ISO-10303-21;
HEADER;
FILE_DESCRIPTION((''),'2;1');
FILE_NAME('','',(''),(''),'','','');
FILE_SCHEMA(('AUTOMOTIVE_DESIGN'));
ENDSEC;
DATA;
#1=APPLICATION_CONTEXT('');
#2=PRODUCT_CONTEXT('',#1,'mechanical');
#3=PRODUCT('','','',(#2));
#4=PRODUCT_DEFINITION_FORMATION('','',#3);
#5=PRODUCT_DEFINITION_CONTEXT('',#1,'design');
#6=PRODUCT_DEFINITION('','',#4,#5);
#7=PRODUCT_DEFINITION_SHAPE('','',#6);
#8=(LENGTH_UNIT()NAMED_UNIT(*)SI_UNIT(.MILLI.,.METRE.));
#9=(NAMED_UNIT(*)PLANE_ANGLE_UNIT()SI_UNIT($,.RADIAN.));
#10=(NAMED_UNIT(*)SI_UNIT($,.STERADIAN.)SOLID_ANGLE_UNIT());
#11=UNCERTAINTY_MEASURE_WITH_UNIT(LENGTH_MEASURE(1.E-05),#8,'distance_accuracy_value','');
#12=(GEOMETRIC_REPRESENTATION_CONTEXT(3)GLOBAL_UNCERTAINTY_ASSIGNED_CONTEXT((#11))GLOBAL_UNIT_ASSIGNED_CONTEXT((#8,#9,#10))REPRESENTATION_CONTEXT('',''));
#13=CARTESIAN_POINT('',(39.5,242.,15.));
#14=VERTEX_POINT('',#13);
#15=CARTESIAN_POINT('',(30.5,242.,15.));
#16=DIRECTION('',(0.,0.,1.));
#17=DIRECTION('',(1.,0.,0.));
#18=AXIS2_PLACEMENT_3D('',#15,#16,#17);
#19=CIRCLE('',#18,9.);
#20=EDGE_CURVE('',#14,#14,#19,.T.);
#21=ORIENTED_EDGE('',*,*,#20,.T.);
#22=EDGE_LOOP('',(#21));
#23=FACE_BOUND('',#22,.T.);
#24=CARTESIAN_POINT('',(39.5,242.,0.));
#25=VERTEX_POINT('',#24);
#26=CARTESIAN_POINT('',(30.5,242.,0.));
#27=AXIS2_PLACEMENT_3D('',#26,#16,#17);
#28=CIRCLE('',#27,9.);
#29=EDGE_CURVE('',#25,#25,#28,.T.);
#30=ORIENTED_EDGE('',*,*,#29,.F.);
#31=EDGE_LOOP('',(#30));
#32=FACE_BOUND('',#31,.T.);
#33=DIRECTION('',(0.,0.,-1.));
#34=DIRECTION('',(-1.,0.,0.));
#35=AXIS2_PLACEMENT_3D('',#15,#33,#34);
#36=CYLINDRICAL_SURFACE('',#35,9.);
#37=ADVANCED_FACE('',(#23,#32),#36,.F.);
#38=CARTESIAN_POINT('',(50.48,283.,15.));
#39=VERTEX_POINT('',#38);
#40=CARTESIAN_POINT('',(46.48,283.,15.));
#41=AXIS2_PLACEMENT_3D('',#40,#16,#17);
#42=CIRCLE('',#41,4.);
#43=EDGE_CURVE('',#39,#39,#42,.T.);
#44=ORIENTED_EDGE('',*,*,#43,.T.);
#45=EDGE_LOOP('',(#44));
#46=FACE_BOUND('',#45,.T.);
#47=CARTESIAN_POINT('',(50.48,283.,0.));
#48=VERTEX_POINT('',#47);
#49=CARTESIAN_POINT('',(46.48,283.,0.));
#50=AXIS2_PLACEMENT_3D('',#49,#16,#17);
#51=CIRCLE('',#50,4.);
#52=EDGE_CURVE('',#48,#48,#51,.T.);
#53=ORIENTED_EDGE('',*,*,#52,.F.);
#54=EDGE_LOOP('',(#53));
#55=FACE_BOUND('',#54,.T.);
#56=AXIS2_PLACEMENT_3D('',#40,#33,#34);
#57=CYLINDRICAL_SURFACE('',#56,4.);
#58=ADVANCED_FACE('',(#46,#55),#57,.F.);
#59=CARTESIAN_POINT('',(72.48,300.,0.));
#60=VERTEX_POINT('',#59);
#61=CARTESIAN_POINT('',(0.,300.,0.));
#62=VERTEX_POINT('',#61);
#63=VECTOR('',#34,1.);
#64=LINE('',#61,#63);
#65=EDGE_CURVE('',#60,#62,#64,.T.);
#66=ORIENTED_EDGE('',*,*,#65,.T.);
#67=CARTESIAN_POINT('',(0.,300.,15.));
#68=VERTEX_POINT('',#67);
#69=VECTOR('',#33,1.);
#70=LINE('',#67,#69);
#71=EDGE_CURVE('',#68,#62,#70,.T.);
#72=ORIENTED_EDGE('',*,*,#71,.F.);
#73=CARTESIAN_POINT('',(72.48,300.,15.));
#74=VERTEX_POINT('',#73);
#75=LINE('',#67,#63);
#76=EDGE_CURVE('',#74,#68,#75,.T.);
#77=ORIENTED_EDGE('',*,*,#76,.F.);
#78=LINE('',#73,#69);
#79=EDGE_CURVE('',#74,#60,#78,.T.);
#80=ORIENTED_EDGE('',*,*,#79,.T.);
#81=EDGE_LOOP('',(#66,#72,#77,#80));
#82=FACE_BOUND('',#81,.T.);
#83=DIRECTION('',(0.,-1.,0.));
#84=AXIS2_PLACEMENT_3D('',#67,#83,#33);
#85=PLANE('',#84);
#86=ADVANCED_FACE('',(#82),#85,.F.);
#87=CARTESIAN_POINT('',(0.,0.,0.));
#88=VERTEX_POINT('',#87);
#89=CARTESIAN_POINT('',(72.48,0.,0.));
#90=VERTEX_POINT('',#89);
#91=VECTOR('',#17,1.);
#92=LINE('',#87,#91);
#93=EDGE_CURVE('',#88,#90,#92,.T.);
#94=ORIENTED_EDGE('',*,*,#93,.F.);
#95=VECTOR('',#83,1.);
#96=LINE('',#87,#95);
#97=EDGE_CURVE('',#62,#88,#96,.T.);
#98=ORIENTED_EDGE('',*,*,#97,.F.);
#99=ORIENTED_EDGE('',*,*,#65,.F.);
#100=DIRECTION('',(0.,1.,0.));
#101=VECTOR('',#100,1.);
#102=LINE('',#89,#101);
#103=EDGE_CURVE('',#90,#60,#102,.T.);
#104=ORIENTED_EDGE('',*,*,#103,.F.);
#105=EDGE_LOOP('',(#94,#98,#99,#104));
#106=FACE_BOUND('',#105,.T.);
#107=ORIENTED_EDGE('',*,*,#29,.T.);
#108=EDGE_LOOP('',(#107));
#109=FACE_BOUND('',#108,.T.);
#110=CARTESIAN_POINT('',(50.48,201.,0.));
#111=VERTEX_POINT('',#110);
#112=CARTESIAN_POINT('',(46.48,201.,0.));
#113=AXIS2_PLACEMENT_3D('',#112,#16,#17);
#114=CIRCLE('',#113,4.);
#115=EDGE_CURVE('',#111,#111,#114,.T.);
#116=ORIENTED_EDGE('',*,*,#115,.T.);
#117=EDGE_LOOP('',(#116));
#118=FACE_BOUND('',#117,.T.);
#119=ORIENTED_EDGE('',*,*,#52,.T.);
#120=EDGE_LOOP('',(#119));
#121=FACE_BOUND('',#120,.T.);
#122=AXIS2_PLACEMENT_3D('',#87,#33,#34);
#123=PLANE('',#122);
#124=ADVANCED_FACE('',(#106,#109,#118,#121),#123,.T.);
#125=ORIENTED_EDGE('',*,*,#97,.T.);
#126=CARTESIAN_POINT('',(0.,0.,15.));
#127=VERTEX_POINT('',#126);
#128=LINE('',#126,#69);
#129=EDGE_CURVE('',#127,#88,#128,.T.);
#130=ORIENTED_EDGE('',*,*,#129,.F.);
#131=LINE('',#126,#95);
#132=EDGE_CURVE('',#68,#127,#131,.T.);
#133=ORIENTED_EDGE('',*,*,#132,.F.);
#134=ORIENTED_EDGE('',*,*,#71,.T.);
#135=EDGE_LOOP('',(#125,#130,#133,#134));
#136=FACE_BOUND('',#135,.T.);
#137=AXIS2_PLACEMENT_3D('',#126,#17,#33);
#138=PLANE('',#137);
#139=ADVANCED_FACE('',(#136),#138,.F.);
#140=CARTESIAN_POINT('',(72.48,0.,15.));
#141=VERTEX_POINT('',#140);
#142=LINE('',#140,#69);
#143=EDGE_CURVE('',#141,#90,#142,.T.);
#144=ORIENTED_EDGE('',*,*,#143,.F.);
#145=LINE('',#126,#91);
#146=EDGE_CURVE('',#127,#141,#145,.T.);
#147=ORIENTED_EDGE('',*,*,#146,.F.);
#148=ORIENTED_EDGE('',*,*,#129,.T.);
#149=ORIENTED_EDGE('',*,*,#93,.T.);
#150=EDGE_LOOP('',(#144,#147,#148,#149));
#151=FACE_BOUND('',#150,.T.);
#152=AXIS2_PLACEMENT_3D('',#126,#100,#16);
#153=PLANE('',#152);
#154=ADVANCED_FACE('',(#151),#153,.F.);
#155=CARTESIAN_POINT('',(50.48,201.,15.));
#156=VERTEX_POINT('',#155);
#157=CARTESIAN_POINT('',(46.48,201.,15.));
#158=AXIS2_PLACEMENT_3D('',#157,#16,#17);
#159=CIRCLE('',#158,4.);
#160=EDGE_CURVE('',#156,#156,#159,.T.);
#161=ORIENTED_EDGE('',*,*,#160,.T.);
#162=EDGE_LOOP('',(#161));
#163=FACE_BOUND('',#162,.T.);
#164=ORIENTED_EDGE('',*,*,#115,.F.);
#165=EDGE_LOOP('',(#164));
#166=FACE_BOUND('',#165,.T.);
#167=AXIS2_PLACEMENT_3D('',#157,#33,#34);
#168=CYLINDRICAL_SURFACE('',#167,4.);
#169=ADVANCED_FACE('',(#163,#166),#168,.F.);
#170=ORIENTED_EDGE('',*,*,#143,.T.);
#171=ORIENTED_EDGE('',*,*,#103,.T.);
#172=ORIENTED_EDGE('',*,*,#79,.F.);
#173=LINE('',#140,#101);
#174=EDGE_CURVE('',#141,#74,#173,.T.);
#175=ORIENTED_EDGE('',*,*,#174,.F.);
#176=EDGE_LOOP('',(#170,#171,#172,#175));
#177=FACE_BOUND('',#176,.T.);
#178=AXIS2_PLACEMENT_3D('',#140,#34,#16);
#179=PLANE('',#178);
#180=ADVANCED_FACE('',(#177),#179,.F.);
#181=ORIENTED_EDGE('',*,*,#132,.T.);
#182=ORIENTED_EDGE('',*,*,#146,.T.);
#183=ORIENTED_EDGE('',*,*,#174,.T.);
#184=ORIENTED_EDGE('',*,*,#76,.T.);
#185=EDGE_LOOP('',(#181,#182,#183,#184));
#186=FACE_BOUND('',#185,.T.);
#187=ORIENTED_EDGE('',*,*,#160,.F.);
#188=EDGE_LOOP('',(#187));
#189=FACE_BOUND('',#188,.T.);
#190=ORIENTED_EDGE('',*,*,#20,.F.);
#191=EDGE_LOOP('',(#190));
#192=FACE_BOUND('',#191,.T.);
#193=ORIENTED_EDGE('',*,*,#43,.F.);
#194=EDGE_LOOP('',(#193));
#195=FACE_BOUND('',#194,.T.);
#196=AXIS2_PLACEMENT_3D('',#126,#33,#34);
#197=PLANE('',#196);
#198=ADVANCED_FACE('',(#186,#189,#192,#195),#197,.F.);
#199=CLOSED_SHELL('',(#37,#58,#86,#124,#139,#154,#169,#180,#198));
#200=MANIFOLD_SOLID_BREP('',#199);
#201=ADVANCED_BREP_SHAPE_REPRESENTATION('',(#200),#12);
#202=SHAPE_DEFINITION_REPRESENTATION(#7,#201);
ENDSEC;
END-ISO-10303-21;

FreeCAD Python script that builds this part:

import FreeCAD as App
import Part
import Sketcher
Q = App.Units.Quantity


def add_polygon(sketch, points):
    """Adds a closed chain of lines whose ends are joined by coincident constraints."""
    first, n = sketch.GeometryCount, len(points)
    for a, b in zip(points, points[1:] + points[:1]):
        sketch.addGeometry(Part.LineSegment(App.Vector(*a, 0), App.Vector(*b, 0)), False)
    for i in range(n):
        sketch.addConstraint(Sketcher.Constraint("Coincident", first + i, 2, first + (i + 1) % n, 1))

doc = App.newDocument("Part")
body = doc.addObject("PartDesign::Body", "Body")

sketch1 = doc.addObject("Sketcher::SketchObject", "Sketch")
body.addObject(sketch1)
sketch1.AttachmentSupport = (doc.XY_Plane, [""])
sketch1.MapMode = "FlatFace"
add_polygon(sketch1, [(0, 300), (0, 0), (72.5, 0), (72.5, 300)])
sketch1.addGeometry(Part.Circle(App.Vector(46.5, 201, 0), App.Vector(0, 0, 1), 4), False)
sketch1.addGeometry(Part.Circle(App.Vector(30.5, 242, 0), App.Vector(0, 0, 1), 9), False)
sketch1.addGeometry(Part.Circle(App.Vector(46.5, 283, 0), App.Vector(0, 0, 1), 4), False)
sketch1.addConstraint([
    Sketcher.Constraint("Vertical", 0),
    Sketcher.Constraint("Horizontal", 1),
    Sketcher.Constraint("Vertical", 2),
    Sketcher.Constraint("Horizontal", 3),
    Sketcher.Constraint("Coincident", 0, 2, -1, 1),
    Sketcher.Constraint("Equal", 4, 6),
    Sketcher.Constraint("Vertical", 4, 3, 6, 3),
    Sketcher.Constraint("Diameter", 4, Q("8 mm")),
    Sketcher.Constraint("Diameter", 5, Q("18 mm")),
    Sketcher.Constraint("DistanceY", 0, 2, 0, 1, Q("300 mm")),
    Sketcher.Constraint("DistanceY", -1, 1, 4, 3, Q("201 mm")),
    Sketcher.Constraint("DistanceY", -1, 1, 5, 3, Q("242 mm")),
    Sketcher.Constraint("DistanceY", -1, 1, 6, 3, Q("283 mm")),
    Sketcher.Constraint("DistanceX", 4, 3, 1, 2, Q("26 mm")),
    Sketcher.Constraint("DistanceX", 1, 1, 1, 2, Q("72.48 mm")),
    Sketcher.Constraint("DistanceX", -1, 1, 5, 3, Q("30.5 mm")),
])
pad1 = doc.addObject("PartDesign::Pad", "Pad")
body.addObject(pad1)
pad1.Profile = sketch1
pad1.Length = 15

doc.recompute()
